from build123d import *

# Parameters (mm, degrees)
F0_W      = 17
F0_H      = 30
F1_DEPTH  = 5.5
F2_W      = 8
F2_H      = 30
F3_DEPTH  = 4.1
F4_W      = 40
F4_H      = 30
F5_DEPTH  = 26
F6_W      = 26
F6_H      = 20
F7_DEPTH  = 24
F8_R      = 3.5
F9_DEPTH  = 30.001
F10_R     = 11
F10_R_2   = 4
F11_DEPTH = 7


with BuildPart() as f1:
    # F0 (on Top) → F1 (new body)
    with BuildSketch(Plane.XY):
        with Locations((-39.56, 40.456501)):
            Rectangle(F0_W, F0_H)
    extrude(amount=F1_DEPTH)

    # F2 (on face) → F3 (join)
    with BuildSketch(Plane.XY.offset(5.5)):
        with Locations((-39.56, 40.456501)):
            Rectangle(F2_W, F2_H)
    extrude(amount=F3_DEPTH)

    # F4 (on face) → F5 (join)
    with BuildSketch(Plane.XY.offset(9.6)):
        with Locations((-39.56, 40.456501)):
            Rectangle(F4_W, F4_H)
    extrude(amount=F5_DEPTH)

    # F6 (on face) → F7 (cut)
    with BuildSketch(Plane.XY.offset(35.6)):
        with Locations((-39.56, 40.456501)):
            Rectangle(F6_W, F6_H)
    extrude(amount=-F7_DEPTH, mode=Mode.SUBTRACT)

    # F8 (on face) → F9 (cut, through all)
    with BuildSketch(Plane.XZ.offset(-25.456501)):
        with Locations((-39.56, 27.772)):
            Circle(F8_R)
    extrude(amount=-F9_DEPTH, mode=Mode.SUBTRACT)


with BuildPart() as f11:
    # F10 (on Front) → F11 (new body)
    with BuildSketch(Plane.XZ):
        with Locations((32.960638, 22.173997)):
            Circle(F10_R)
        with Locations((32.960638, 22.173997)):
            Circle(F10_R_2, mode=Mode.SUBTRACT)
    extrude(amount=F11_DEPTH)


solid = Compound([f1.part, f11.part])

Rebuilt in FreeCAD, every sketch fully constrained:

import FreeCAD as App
import Part
import Sketcher
Q = App.Units.Quantity

doc = App.newDocument("Part")
body = doc.addObject("PartDesign::Body", "Body")

# Sketch on XY plane
sketch1 = body.newObject("Sketcher::SketchObject", "Sketch")
sketch1.AttachmentSupport = (doc.getObject("XY_Plane"), [""])
sketch1.MapMode = "FlatFace"
sketch1.addGeometry(Part.LineSegment(App.Vector(-48, 55, 0), App.Vector(-48, 25, 0)), False)
sketch1.addGeometry(Part.LineSegment(App.Vector(-48, 25, 0), App.Vector(-31, 25, 0)), False)
sketch1.addGeometry(Part.LineSegment(App.Vector(-31, 25, 0), App.Vector(-31, 55, 0)), False)
sketch1.addGeometry(Part.LineSegment(App.Vector(-31, 55, 0), App.Vector(-48, 55, 0)), False)
sketch1.addConstraint(Sketcher.Constraint("Coincident", 0, 2, 1, 1))
sketch1.addConstraint(Sketcher.Constraint("Coincident", 1, 2, 2, 1))
sketch1.addConstraint(Sketcher.Constraint("Coincident", 2, 2, 3, 1))
sketch1.addConstraint(Sketcher.Constraint("Coincident", 3, 2, 0, 1))
sketch1.addConstraint(Sketcher.Constraint("Vertical", 0))
sketch1.addConstraint(Sketcher.Constraint("Horizontal", 1))
sketch1.addConstraint(Sketcher.Constraint("Vertical", 2))
sketch1.addConstraint(Sketcher.Constraint("Horizontal", 3))
sketch1.addConstraint(Sketcher.Constraint("DistanceX", 1, 1, 1, 2, Q("17 mm")))
sketch1.addConstraint(Sketcher.Constraint("DistanceY", 0, 2, 0, 1, Q("30 mm")))
sketch1.addConstraint(Sketcher.Constraint("DistanceX", 0, 2, -1, 1, Q("48.06 mm")))
sketch1.addConstraint(Sketcher.Constraint("DistanceY", -1, 1, 0, 2, Q("25.456501 mm")))
pad1 = body.newObject("PartDesign::Pad", "Pad")
pad1.Profile = sketch1
pad1.Length = 5.5

# Sketch on XY plane
sketch2 = body.newObject("Sketcher::SketchObject", "Sketch001")
sketch2.AttachmentSupport = (doc.getObject("XY_Plane"), [""])
sketch2.MapMode = "FlatFace"
sketch2.AttachmentOffset = App.Placement(App.Vector(0, 0, 5.5), App.Rotation())
sketch2.addGeometry(Part.LineSegment(App.Vector(-44, 55, 0), App.Vector(-44, 25, 0)), False)
sketch2.addGeometry(Part.LineSegment(App.Vector(-44, 25, 0), App.Vector(-36, 25, 0)), False)
sketch2.addGeometry(Part.LineSegment(App.Vector(-36, 25, 0), App.Vector(-36, 55, 0)), False)
sketch2.addGeometry(Part.LineSegment(App.Vector(-36, 55, 0), App.Vector(-44, 55, 0)), False)
sketch2.addConstraint(Sketcher.Constraint("Coincident", 0, 2, 1, 1))
sketch2.addConstraint(Sketcher.Constraint("Coincident", 1, 2, 2, 1))
sketch2.addConstraint(Sketcher.Constraint("Coincident", 2, 2, 3, 1))
sketch2.addConstraint(Sketcher.Constraint("Coincident", 3, 2, 0, 1))
sketch2.addConstraint(Sketcher.Constraint("Vertical", 0))
sketch2.addConstraint(Sketcher.Constraint("Horizontal", 1))
sketch2.addConstraint(Sketcher.Constraint("Vertical", 2))
sketch2.addConstraint(Sketcher.Constraint("Horizontal", 3))
sketch2.addConstraint(Sketcher.Constraint("DistanceX", 1, 1, 1, 2, Q("8 mm")))
sketch2.addConstraint(Sketcher.Constraint("DistanceY", 0, 2, 0, 1, Q("30 mm")))
sketch2.addConstraint(Sketcher.Constraint("DistanceX", 0, 2, -1, 1, Q("43.56 mm")))
sketch2.addConstraint(Sketcher.Constraint("DistanceY", -1, 1, 0, 2, Q("25.456501 mm")))
pad2 = body.newObject("PartDesign::Pad", "Pad001")
pad2.Profile = sketch2
pad2.Length = 4.1

# Sketch on XY plane
sketch3 = body.newObject("Sketcher::SketchObject", "Sketch002")
sketch3.AttachmentSupport = (doc.getObject("XY_Plane"), [""])
sketch3.MapMode = "FlatFace"
sketch3.AttachmentOffset = App.Placement(App.Vector(0, 0, 9.6), App.Rotation())
sketch3.addGeometry(Part.LineSegment(App.Vector(-60, 55, 0), App.Vector(-60, 25, 0)), False)
sketch3.addGeometry(Part.LineSegment(App.Vector(-60, 25, 0), App.Vector(-20, 25, 0)), False)
sketch3.addGeometry(Part.LineSegment(App.Vector(-20, 25, 0), App.Vector(-20, 55, 0)), False)
sketch3.addGeometry(Part.LineSegment(App.Vector(-20, 55, 0), App.Vector(-60, 55, 0)), False)
sketch3.addConstraint(Sketcher.Constraint("Coincident", 0, 2, 1, 1))
sketch3.addConstraint(Sketcher.Constraint("Coincident", 1, 2, 2, 1))
sketch3.addConstraint(Sketcher.Constraint("Coincident", 2, 2, 3, 1))
sketch3.addConstraint(Sketcher.Constraint("Coincident", 3, 2, 0, 1))
sketch3.addConstraint(Sketcher.Constraint("Vertical", 0))
sketch3.addConstraint(Sketcher.Constraint("Horizontal", 1))
sketch3.addConstraint(Sketcher.Constraint("Vertical", 2))
sketch3.addConstraint(Sketcher.Constraint("Horizontal", 3))
sketch3.addConstraint(Sketcher.Constraint("DistanceX", 1, 1, 1, 2, Q("40 mm")))
sketch3.addConstraint(Sketcher.Constraint("DistanceY", 0, 2, 0, 1, Q("30 mm")))
sketch3.addConstraint(Sketcher.Constraint("DistanceX", 0, 2, -1, 1, Q("59.56 mm")))
sketch3.addConstraint(Sketcher.Constraint("DistanceY", -1, 1, 0, 2, Q("25.456501 mm")))
pad3 = body.newObject("PartDesign::Pad", "Pad002")
pad3.Profile = sketch3
pad3.Length = 26

# Sketch on XY plane
sketch4 = body.newObject("Sketcher::SketchObject", "Sketch003")
sketch4.AttachmentSupport = (doc.getObject("XY_Plane"), [""])
sketch4.MapMode = "FlatFace"
sketch4.AttachmentOffset = App.Placement(App.Vector(0, 0, 35.6), App.Rotation())
sketch4.addGeometry(Part.LineSegment(App.Vector(-53, 50, 0), App.Vector(-53, 30, 0)), False)
sketch4.addGeometry(Part.LineSegment(App.Vector(-53, 30, 0), App.Vector(-27, 30, 0)), False)
sketch4.addGeometry(Part.LineSegment(App.Vector(-27, 30, 0), App.Vector(-27, 50, 0)), False)
sketch4.addGeometry(Part.LineSegment(App.Vector(-27, 50, 0), App.Vector(-53, 50, 0)), False)
sketch4.addConstraint(Sketcher.Constraint("Coincident", 0, 2, 1, 1))
sketch4.addConstraint(Sketcher.Constraint("Coincident", 1, 2, 2, 1))
sketch4.addConstraint(Sketcher.Constraint("Coincident", 2, 2, 3, 1))
sketch4.addConstraint(Sketcher.Constraint("Coincident", 3, 2, 0, 1))
sketch4.addConstraint(Sketcher.Constraint("Vertical", 0))
sketch4.addConstraint(Sketcher.Constraint("Horizontal", 1))
sketch4.addConstraint(Sketcher.Constraint("Vertical", 2))
sketch4.addConstraint(Sketcher.Constraint("Horizontal", 3))
sketch4.addConstraint(Sketcher.Constraint("DistanceX", 1, 1, 1, 2, Q("26 mm")))
sketch4.addConstraint(Sketcher.Constraint("DistanceY", 0, 2, 0, 1, Q("20 mm")))
sketch4.addConstraint(Sketcher.Constraint("DistanceX", 0, 2, -1, 1, Q("52.56 mm")))
sketch4.addConstraint(Sketcher.Constraint("DistanceY", -1, 1, 0, 2, Q("30.456501 mm")))
pocket1 = body.newObject("PartDesign::Pocket", "Pocket")
pocket1.Profile = sketch4
pocket1.Length = 24

# Sketch on XZ plane
sketch5 = body.newObject("Sketcher::SketchObject", "Sketch004")
sketch5.AttachmentSupport = (doc.getObject("XZ_Plane"), [""])
sketch5.MapMode = "FlatFace"
sketch5.AttachmentOffset = App.Placement(App.Vector(0, 0, -25.456501), App.Rotation())
sketch5.addGeometry(Part.Circle(App.Vector(-39.6, 27.8, 0), App.Vector(0, 0, 1), 3.5), False)
sketch5.addConstraint(Sketcher.Constraint("Diameter", 0, Q("7 mm")))
sketch5.addConstraint(Sketcher.Constraint("DistanceX", 0, 3, -1, 1, Q("39.56 mm")))
sketch5.addConstraint(Sketcher.Constraint("DistanceY", -1, 1, 0, 3, Q("27.772 mm")))
pocket2 = body.newObject("PartDesign::Pocket", "Pocket001")
pocket2.Profile = sketch5
pocket2.Type = "ThroughAll"
body2 = doc.addObject("PartDesign::Body", "Body001")

# Sketch on XZ plane
sketch6 = body2.newObject("Sketcher::SketchObject", "Sketch005")
sketch6.AttachmentSupport = (doc.getObject("XZ_Plane001"), [""])
sketch6.MapMode = "FlatFace"
sketch6.addGeometry(Part.Circle(App.Vector(33, 22.2, 0), App.Vector(0, 0, 1), 11), False)
sketch6.addGeometry(Part.Circle(App.Vector(33, 22.2, 0), App.Vector(0, 0, 1), 4), False)
sketch6.addConstraint(Sketcher.Constraint("Coincident", 1, 3, 0, 3))
sketch6.addConstraint(Sketcher.Constraint("Diameter", 0, Q("22 mm")))
sketch6.addConstraint(Sketcher.Constraint("Diameter", 1, Q("8 mm")))
sketch6.addConstraint(Sketcher.Constraint("DistanceX", -1, 1, 0, 3, Q("32.960638 mm")))
sketch6.addConstraint(Sketcher.Constraint("DistanceY", -1, 1, 0, 3, Q("22.173997 mm")))
pad4 = body2.newObject("PartDesign::Pad", "Pad003")
pad4.Profile = sketch6
pad4.Length = 7

doc.recompute()
